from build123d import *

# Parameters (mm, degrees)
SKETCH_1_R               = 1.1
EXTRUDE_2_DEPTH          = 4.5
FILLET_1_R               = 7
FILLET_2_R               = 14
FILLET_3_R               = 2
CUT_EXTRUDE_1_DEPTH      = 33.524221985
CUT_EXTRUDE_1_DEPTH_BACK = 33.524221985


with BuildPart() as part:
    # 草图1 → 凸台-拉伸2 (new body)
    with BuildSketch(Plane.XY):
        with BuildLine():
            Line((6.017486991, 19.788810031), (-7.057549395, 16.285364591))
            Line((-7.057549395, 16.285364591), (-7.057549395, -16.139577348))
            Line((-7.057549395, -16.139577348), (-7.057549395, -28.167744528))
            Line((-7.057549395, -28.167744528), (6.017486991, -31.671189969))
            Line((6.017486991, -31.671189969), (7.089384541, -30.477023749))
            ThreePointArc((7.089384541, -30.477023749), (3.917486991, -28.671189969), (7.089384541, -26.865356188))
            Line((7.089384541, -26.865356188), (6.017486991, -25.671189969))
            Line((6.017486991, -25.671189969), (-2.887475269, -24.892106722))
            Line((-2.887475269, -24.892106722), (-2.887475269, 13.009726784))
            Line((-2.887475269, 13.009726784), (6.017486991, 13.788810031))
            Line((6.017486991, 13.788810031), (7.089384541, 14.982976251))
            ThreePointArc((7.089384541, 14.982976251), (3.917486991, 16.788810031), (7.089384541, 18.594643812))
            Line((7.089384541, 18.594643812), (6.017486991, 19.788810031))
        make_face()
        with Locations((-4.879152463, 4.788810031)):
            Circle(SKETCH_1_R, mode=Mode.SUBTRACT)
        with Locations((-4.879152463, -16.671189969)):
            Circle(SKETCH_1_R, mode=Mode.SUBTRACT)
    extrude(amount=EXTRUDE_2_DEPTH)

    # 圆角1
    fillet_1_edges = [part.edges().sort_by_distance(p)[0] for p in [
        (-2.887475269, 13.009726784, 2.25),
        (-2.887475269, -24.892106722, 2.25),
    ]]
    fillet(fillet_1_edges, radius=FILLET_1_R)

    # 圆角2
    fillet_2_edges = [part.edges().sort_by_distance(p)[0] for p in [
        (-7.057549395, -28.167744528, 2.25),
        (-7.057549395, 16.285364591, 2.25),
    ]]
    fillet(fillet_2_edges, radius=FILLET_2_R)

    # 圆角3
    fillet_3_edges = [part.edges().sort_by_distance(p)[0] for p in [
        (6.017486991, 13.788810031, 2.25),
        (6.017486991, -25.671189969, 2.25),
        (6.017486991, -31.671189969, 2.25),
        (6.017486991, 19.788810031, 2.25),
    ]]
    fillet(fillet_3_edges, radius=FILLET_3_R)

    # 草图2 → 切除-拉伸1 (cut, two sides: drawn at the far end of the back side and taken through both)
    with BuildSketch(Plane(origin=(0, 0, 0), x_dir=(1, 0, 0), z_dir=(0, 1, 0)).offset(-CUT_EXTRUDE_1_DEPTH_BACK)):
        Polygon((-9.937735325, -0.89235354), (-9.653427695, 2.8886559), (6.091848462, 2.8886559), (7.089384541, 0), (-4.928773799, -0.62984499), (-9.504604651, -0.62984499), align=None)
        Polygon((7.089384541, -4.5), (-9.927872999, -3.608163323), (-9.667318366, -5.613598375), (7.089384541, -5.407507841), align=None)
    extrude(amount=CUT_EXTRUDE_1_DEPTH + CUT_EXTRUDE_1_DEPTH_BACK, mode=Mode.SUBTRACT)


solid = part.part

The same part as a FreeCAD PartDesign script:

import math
import FreeCAD as App
import Part
import Sketcher
from FreeCAD import Vector
Q = App.Units.Quantity


def edges_at(feature, points):
    """Names of the edges that pass closest to the given points."""
    edges = feature.Shape.Edges
    near = lambda p: min(range(len(edges)), key=lambda i: edges[i].distToShape(Part.Vertex(*p))[0])
    return sorted({f"Edge{near(p) + 1}" for p in points})

doc = App.newDocument("Part")
body = doc.addObject("PartDesign::Body", "Body")

sketch1 = doc.addObject("Sketcher::SketchObject", "Sketch")
body.addObject(sketch1)
sketch1.AttachmentSupport = (doc.XY_Plane, [""])
sketch1.MapMode = "FlatFace"
sketch1.addGeometry([
    Part.LineSegment(Vector(6, 19.8, 0), Vector(-7.1, 16.3, 0)),
    Part.LineSegment(Vector(-7.1, 16.3, 0), Vector(-7.1, -28.2, 0)),
    Part.LineSegment(Vector(-7.1, -28.2, 0), Vector(6, -31.7, 0)),
    Part.LineSegment(Vector(6, -31.7, 0), Vector(7.1, -30.5, 0)),
    Part.ArcOfCircle(Part.Circle(Vector(6, -28.7, 0), Vector(0, 0, 1), 2.1), math.radians(59), math.radians(301)),
    Part.LineSegment(Vector(7.1, -26.9, 0), Vector(6, -25.7, 0)),
    Part.LineSegment(Vector(6, -25.7, 0), Vector(-2.9, -24.9, 0)),
    Part.LineSegment(Vector(-2.9, -24.9, 0), Vector(-2.9, 13, 0)),
    Part.LineSegment(Vector(-2.9, 13, 0), Vector(6, 13.8, 0)),
    Part.LineSegment(Vector(6, 13.8, 0), Vector(7.1, 15, 0)),
    Part.ArcOfCircle(Part.Circle(Vector(6, 16.8, 0), Vector(0, 0, 1), 2.1), math.radians(59), math.radians(301)),
    Part.LineSegment(Vector(7.1, 18.6, 0), Vector(6, 19.8, 0)),
    Part.Circle(Vector(-4.9, -16.7, 0), Vector(0, 0, 1), 1.1),
    Part.Circle(Vector(-4.9, 4.8, 0), Vector(0, 0, 1), 1.1),
], False)
sketch1.addConstraint([
    Sketcher.Constraint("Coincident", 0, 2, 1, 1),
    Sketcher.Constraint("Coincident", 1, 2, 2, 1),
    Sketcher.Constraint("Coincident", 2, 2, 3, 1),
    Sketcher.Constraint("Coincident", 3, 2, 4, 2),
    Sketcher.Constraint("Coincident", 4, 1, 5, 1),
    Sketcher.Constraint("Coincident", 5, 2, 6, 1),
    Sketcher.Constraint("Coincident", 6, 2, 7, 1),
    Sketcher.Constraint("Coincident", 7, 2, 8, 1),
    Sketcher.Constraint("Coincident", 8, 2, 9, 1),
    Sketcher.Constraint("Coincident", 9, 2, 10, 2),
    Sketcher.Constraint("Coincident", 10, 1, 11, 1),
    Sketcher.Constraint("Coincident", 11, 2, 0, 1),
    Sketcher.Constraint("Vertical", 1),
    Sketcher.Constraint("Vertical", 7),
    Sketcher.Constraint("Equal", 4, 10),
    Sketcher.Constraint("Equal", 12, 13),
    Sketcher.Constraint("Parallel", 3, 9),
    Sketcher.Constraint("Parallel", 5, 11),
    Sketcher.Constraint("Vertical", 4, 3, 10, 3),
    Sketcher.Constraint("Vertical", 12, 3, 13, 3),
    Sketcher.Constraint("Vertical", 10, 3, 2, 2),
    Sketcher.Constraint("Vertical", 3, 2, 4, 1),
    Sketcher.Constraint("Vertical", 2, 2, 5, 2),
    Sketcher.Constraint("Vertical", 5, 2, 8, 2),
    Sketcher.Constraint("Vertical", 4, 1, 9, 2),
    Sketcher.Constraint("Vertical", 9, 2, 10, 1),
    Sketcher.Constraint("Vertical", 8, 2, 11, 2),
    Sketcher.Constraint("Equal", 0, 2),
    Sketcher.Constraint("Equal", 3, 5),
    Sketcher.Constraint("Equal", 6, 8),
    Sketcher.Constraint("Diameter", 12, 2.2),
    Sketcher.Constraint("Radius", 4, 2.1),
    Sketcher.Constraint("Angle", 0, Q("-165 deg")),
    Sketcher.Constraint("Angle", 6, Q("175 deg")),
    Sketcher.Constraint("DistanceY", 4, 3, 12, 3, 12.0),
    Sketcher.Constraint("DistanceY", 13, 3, 10, 3, 12.0),
    Sketcher.Constraint("DistanceY", 2, 2, 4, 3, 3.0),
    Sketcher.Constraint("DistanceY", 4, 3, 10, 3, 45.46),
    Sketcher.Constraint("DistanceY", 1, 2, 1, 1, 44.453109),
    Sketcher.Constraint("Distance", 3, 1.60468),
    Sketcher.Constraint("DistanceY", 7, 1, 7, 2, 37.901834),
    Sketcher.Constraint("DistanceY", 4, 3, -1, 1, 28.67119),
    Sketcher.Constraint("DistanceX", 0, 2, -1, 1, 7.057549),
    Sketcher.Constraint("DistanceX", 12, 3, 4, 3, 10.896639),
])
pad1 = doc.addObject("PartDesign::Pad", "Pad")
body.addObject(pad1)
pad1.Profile = sketch1
pad1.Length = 4.5
doc.recompute()

fillet = doc.addObject("PartDesign::Fillet", "Fillet")
body.addObject(fillet)
fillet.Base = (pad1, edges_at(pad1, [(-2.887, 13.01, 2.25), (-2.887, -24.892, 2.25)]))
fillet.Radius = 7
doc.recompute()

fillet2 = doc.addObject("PartDesign::Fillet", "Fillet001")
body.addObject(fillet2)
fillet2.Base = (fillet, edges_at(fillet, [(-7.058, -28.168, 2.25), (-7.058, 16.285, 2.25)]))
fillet2.Radius = 14
doc.recompute()

fillet3 = doc.addObject("PartDesign::Fillet", "Fillet002")
body.addObject(fillet3)
fillet3.Base = (fillet2, edges_at(fillet2, [
    (6.017, 13.789, 2.25),
    (6.017, -25.671, 2.25),
    (6.017, -31.671, 2.25),
    (6.017, 19.789, 2.25),
]))
fillet3.Radius = 2

sketch2 = doc.addObject("Sketcher::SketchObject", "Sketch001")
body.addObject(sketch2)
sketch2.AttachmentSupport = (doc.XZ_Plane, [""])
sketch2.MapMode = "FlatFace"
sketch2.addGeometry([
    Part.LineSegment(Vector(-9.653428, -2.888656, 0), Vector(-9.937735, 0.892354, 0)),
    Part.LineSegment(Vector(-9.937735, 0.892354, 0), Vector(-9.504605, 0.629845, 0)),
    Part.LineSegment(Vector(-9.504605, 0.629845, 0), Vector(-4.928774, 0.629845, 0)),
    Part.LineSegment(Vector(-4.928774, 0.629845, 0), Vector(7.089385, 0, 0)),
    Part.LineSegment(Vector(7.089385, 0, 0), Vector(6.091848, -2.888656, 0)),
    Part.LineSegment(Vector(6.091848, -2.888656, 0), Vector(-9.653428, -2.888656, 0)),
    Part.LineSegment(Vector(7.089385, 4.5, 0), Vector(-9.927873, 3.608163, 0)),
    Part.LineSegment(Vector(-9.927873, 3.608163, 0), Vector(-9.667318, 5.613598, 0)),
    Part.LineSegment(Vector(-9.667318, 5.613598, 0), Vector(7.089385, 5.407508, 0)),
    Part.LineSegment(Vector(7.089385, 5.407508, 0), Vector(7.089385, 4.5, 0)),
], False)
sketch2.addConstraint([
    Sketcher.Constraint("Coincident", 0, 2, 1, 1),
    Sketcher.Constraint("Coincident", 1, 2, 2, 1),
    Sketcher.Constraint("Coincident", 2, 2, 3, 1),
    Sketcher.Constraint("Coincident", 3, 2, 4, 1),
    Sketcher.Constraint("Coincident", 4, 2, 5, 1),
    Sketcher.Constraint("Coincident", 5, 2, 0, 1),
    Sketcher.Constraint("Coincident", 6, 2, 7, 1),
    Sketcher.Constraint("Coincident", 7, 2, 8, 1),
    Sketcher.Constraint("Coincident", 8, 2, 9, 1),
    Sketcher.Constraint("Coincident", 9, 2, 6, 1),
    Sketcher.Constraint("Horizontal", 2),
    Sketcher.Constraint("Horizontal", 5),
    Sketcher.Constraint("Vertical", 9),
    Sketcher.Constraint("PointOnObject", 3, 2, -1),
    Sketcher.Constraint("DistanceY", -1, 1, 9, 2, 4.5),
    Sketcher.Constraint("DistanceX", 2, 1, 2, 2, 4.575831),
    Sketcher.Constraint("DistanceY", -1, 1, 7, 2, 5.613598),
    Sketcher.Constraint("DistanceY", 4, 2, 2, 2, 3.518501),
    Sketcher.Constraint("DistanceX", 6, 2, 2, 2, 4.999099),
    Sketcher.Constraint("Distance", 1, 0.506471),
    Sketcher.Constraint("Distance", 3, 12.034651),
    Sketcher.Constraint("Distance", 6, 17.040611),
    Sketcher.Constraint("Distance", 7, 2.02229),
    Sketcher.Constraint("Distance", 8, 16.75797),
    Sketcher.Constraint("DistanceX", 5, 2, 5, 1, 15.745276),
    Sketcher.Constraint("DistanceY", 9, 2, 9, 1, 0.907508),
    Sketcher.Constraint("DistanceX", -1, 1, 4, 2, 6.091848),
    Sketcher.Constraint("DistanceX", 7, 2, -1, 1, 9.667318),
    Sketcher.Constraint("DistanceX", 0, 2, 1, 2, 0.433131),
    Sketcher.Constraint("DistanceX", 2, 2, 3, 2, 12.018158),
])
pocket1 = doc.addObject("PartDesign::Pocket", "Pocket")
body.addObject(pocket1)
pocket1.Profile = sketch2
pocket1.Type = "ThroughAll"
pocket1.Midplane = True

doc.recompute()
